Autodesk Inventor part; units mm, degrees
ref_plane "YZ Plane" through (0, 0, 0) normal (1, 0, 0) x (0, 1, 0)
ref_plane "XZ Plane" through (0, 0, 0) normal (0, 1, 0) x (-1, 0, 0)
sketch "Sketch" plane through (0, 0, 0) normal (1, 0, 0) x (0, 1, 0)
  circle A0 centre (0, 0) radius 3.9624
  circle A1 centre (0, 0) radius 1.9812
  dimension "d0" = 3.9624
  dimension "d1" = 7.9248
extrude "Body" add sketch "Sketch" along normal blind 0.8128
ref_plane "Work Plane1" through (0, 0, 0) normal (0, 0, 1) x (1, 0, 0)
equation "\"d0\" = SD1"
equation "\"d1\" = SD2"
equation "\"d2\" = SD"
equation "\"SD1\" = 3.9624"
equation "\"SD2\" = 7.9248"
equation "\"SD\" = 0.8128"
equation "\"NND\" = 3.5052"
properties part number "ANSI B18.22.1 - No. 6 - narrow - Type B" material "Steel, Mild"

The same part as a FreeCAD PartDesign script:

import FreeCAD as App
import Part
import Sketcher
Q = App.Units.Quantity

doc = App.newDocument("Part")
body = doc.addObject("PartDesign::Body", "Body")

sketch1 = body.newObject("Sketcher::SketchObject", "Sketch")
sketch1.AttachmentSupport = (doc.getObject("YZ_Plane"), [""])
sketch1.MapMode = "FlatFace"
sketch1.addGeometry(Part.Circle(App.Vector(0, 0, 0), App.Vector(0, 0, 1), 4), False)
sketch1.addGeometry(Part.Circle(App.Vector(0, 0, 0), App.Vector(0, 0, 1), 2), False)
sketch1.addConstraint(Sketcher.Constraint("Coincident", 0, 3, -1, 1))
sketch1.addConstraint(Sketcher.Constraint("Coincident", 1, 3, -1, 1))
sketch1.addConstraint(Sketcher.Constraint("Diameter", 0, Q("0.312 in")))
sketch1.addConstraint(Sketcher.Constraint("Diameter", 1, Q("0.156 in")))
pad1 = body.newObject("PartDesign::Pad", "Pad")
pad1.Profile = sketch1
pad1.Length = Q("0.032 in")

doc.recompute()
